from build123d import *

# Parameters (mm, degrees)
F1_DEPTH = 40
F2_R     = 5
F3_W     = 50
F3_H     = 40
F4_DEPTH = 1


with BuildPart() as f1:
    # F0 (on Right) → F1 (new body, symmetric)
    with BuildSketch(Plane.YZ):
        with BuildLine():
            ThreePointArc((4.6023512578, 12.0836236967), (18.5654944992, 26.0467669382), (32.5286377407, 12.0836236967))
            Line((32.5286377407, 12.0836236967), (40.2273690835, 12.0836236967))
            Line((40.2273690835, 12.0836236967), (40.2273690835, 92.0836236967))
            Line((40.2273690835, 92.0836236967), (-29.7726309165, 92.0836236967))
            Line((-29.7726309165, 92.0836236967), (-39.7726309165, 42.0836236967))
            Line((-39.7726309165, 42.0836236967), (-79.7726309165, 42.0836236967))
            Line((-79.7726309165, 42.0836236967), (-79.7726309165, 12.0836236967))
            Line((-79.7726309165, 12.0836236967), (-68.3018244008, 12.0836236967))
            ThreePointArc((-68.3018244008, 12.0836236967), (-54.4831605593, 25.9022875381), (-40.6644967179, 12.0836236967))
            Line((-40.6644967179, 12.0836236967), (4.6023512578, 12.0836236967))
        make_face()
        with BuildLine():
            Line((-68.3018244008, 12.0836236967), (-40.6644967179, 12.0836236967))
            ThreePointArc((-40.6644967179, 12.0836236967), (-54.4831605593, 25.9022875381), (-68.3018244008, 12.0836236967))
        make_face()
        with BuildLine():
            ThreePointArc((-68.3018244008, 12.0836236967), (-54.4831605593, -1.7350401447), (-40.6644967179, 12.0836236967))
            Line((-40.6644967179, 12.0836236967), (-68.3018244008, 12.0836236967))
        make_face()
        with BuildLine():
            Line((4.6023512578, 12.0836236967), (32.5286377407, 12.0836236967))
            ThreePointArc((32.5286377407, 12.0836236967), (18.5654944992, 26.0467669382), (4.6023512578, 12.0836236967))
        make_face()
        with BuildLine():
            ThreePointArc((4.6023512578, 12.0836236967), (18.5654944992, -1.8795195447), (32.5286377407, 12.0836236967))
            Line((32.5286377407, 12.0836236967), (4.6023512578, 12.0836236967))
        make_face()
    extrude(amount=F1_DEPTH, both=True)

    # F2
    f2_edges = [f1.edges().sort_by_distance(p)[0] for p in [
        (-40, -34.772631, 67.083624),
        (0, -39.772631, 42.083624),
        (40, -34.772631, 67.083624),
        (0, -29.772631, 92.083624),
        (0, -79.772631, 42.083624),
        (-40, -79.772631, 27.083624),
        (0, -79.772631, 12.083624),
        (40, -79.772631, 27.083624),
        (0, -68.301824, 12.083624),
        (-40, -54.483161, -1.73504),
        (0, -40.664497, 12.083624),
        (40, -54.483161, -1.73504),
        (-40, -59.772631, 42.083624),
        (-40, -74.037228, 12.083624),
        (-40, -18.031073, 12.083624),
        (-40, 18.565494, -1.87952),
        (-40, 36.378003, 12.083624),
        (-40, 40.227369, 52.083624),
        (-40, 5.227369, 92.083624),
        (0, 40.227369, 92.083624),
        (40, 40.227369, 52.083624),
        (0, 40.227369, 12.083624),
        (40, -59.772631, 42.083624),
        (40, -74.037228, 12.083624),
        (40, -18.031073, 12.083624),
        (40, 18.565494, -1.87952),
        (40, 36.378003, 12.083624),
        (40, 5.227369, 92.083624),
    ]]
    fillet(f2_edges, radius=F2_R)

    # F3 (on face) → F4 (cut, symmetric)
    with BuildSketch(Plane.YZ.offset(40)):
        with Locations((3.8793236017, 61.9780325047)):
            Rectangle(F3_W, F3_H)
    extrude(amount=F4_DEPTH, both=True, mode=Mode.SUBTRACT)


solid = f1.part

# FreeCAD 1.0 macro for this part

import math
import FreeCAD as App
import Part
import Sketcher

V = App.Vector


def edges_at(feature, points):
    """Names of the edges that pass closest to the given points."""
    edges = feature.Shape.Edges
    near = lambda p: min(range(len(edges)), key=lambda i: edges[i].distToShape(Part.Vertex(*p))[0])
    return sorted({f"Edge{near(p) + 1}" for p in points})


def add_polygon(sketch, points):
    """Adds a closed chain of lines whose ends are joined by coincident constraints."""
    first, n = sketch.GeometryCount, len(points)
    for a, b in zip(points, points[1:] + points[:1]):
        sketch.addGeometry(Part.LineSegment(App.Vector(*a, 0), App.Vector(*b, 0)), False)
    for i in range(n):
        sketch.addConstraint(Sketcher.Constraint("Coincident", first + i, 2, first + (i + 1) % n, 1))

doc = App.newDocument("Part")
body = doc.addObject("PartDesign::Body", "Body")

# Sketch on YZ plane
sketch1 = body.newObject("Sketcher::SketchObject", "Sketch")
sketch1.AttachmentSupport = (doc.getObject("YZ_Plane"), [""])
sketch1.MapMode = "FlatFace"
sketch1.addGeometry([
    Part.LineSegment(V(40, 12, 0), V(40, 92, 0)),  # 0
    Part.LineSegment(V(40, 92, 0), V(-30, 92, 0)),  # 1
    Part.LineSegment(V(-30, 92, 0), V(-40, 42, 0)),  # 2
    Part.LineSegment(V(-40, 42, 0), V(-80, 42, 0)),  # 3
    Part.LineSegment(V(-80, 42, 0), V(-80, 12, 0)),  # 4
    Part.LineSegment(V(-80, 12, 0), V(-68, 12, 0)),  # 5
    Part.ArcOfCircle(Part.Circle(V(-54, 12, 0), V(0, 0, 1), 14), math.radians(180), math.radians(360)),  # 6
    Part.LineSegment(V(-41, 12, 0), V(5, 12, 0)),  # 7
    Part.ArcOfCircle(Part.Circle(V(19, 12, 0), V(0, 0, 1), 14), math.radians(180), math.radians(360)),  # 8
    Part.LineSegment(V(33, 12, 0), V(40, 12, 0)),  # 9
], False)
sketch1.addConstraint([
    Sketcher.Constraint("Coincident", 0, 2, 1, 1),
    Sketcher.Constraint("Coincident", 1, 2, 2, 1),
    Sketcher.Constraint("Coincident", 2, 2, 3, 1),
    Sketcher.Constraint("Coincident", 3, 2, 4, 1),
    Sketcher.Constraint("Coincident", 4, 2, 5, 1),
    Sketcher.Constraint("Coincident", 5, 2, 6, 1),
    Sketcher.Constraint("Coincident", 6, 2, 7, 1),
    Sketcher.Constraint("Coincident", 7, 2, 8, 1),
    Sketcher.Constraint("Coincident", 8, 2, 9, 1),
    Sketcher.Constraint("Coincident", 9, 2, 0, 1),
    Sketcher.Constraint("Vertical", 0),
    Sketcher.Constraint("Horizontal", 1),
    Sketcher.Constraint("Horizontal", 3),
    Sketcher.Constraint("Vertical", 4),
    Sketcher.Constraint("Horizontal", 5),
    Sketcher.Constraint("Horizontal", 7),
    Sketcher.Constraint("Horizontal", 9),
    Sketcher.Constraint("Horizontal", 6, 3, 8, 3),
    Sketcher.Constraint("Horizontal", 8, 3, 4, 2),
    Sketcher.Constraint("Horizontal", 5, 2, 6, 2),
    Sketcher.Constraint("Horizontal", 7, 2, 8, 2),
    Sketcher.Constraint("DistanceX", 1, 2, 1, 1, 70.0),
    Sketcher.Constraint("DistanceX", 3, 2, 3, 1, 40.0),
    Sketcher.Constraint("DistanceY", 0, 1, 0, 2, 80.0),
    Sketcher.Constraint("DistanceY", 4, 2, 4, 1, 30.0),
    Sketcher.Constraint("DistanceX", 2, 2, 1, 2, 10.0),
    Sketcher.Constraint("Radius", 6, 13.818664),
    Sketcher.Constraint("Radius", 8, 13.963143),
    Sketcher.Constraint("DistanceX", 9, 1, 9, 2, 7.698731),
    Sketcher.Constraint("DistanceX", 5, 1, 5, 2, 11.470807),
    Sketcher.Constraint("DistanceX", 6, 3, -1, 1, 54.483161),
    Sketcher.Constraint("DistanceY", -1, 1, 6, 3, 12.083624),
])
pad1 = body.newObject("PartDesign::Pad", "Pad")
pad1.Profile = sketch1
pad1.Length = 80
pad1.Midplane = True
doc.recompute()

fillet = body.newObject("PartDesign::Fillet", "Fillet")
fillet.Base = (pad1, edges_at(pad1, [
    (-40, -34.773, 67.084),
    (0, -39.773, 42.084),
    (40, -34.773, 67.084),
    (0, -29.773, 92.084),
    (0, -79.773, 42.084),
    (-40, -79.773, 27.084),
    (0, -79.773, 12.084),
    (40, -79.773, 27.084),
    (0, -68.302, 12.084),
    (-40, -54.483, -1.735),
    (0, -40.664, 12.084),
    (40, -54.483, -1.735),
    (-40, -59.773, 42.084),
    (-40, -74.037, 12.084),
    (-40, -18.031, 12.084),
    (-40, 18.565, -1.88),
    (-40, 36.378, 12.084),
    (-40, 40.227, 52.084),
    (-40, 5.227, 92.084),
    (0, 40.227, 92.084),
    (40, 40.227, 52.084),
    (0, 40.227, 12.084),
    (40, -59.773, 42.084),
    (40, -74.037, 12.084),
    (40, -18.031, 12.084),
    (40, 18.565, -1.88),
    (40, 36.378, 12.084),
    (40, 5.227, 92.084),
]))
fillet.Radius = 5

# Sketch on YZ plane
sketch2 = body.newObject("Sketcher::SketchObject", "Sketch001")
sketch2.AttachmentSupport = (doc.getObject("YZ_Plane"), [""])
sketch2.MapMode = "FlatFace"
sketch2.AttachmentOffset = App.Placement(V(0, 0, 40), App.Rotation())
add_polygon(sketch2, [(-21, 82), (-21, 42), (29, 42), (29, 82)])  # lines 0-3
sketch2.addConstraint([
    Sketcher.Constraint("Vertical", 0),
    Sketcher.Constraint("Horizontal", 1),
    Sketcher.Constraint("Vertical", 2),
    Sketcher.Constraint("Horizontal", 3),
    Sketcher.Constraint("DistanceX", 1, 1, 1, 2, 50.0),
    Sketcher.Constraint("DistanceY", 0, 2, 0, 1, 40.0),
    Sketcher.Constraint("DistanceX", 0, 2, -1, 1, 21.120676),
    Sketcher.Constraint("DistanceY", -1, 1, 0, 2, 41.978033),
])
pocket1 = body.newObject("PartDesign::Pocket", "Pocket")
pocket1.Profile = sketch2
pocket1.Length = 2
pocket1.Midplane = True

doc.recompute()
